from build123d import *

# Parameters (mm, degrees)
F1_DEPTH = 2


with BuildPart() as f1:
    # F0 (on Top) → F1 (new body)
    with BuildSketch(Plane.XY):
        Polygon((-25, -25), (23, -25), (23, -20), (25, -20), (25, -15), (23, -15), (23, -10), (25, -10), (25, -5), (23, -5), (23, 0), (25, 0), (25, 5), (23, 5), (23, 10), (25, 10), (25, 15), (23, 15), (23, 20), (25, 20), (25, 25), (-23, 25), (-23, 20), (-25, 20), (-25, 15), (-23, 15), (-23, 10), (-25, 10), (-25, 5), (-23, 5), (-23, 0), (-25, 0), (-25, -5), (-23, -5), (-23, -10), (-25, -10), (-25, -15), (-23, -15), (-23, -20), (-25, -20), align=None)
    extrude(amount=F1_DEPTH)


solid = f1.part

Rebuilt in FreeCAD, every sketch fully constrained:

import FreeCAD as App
import Part
import Sketcher
Q = App.Units.Quantity

doc = App.newDocument("Part")
params = doc.addObject("Spreadsheet::Sheet", "Params")
for row, (alias, value) in enumerate([
    ("sketch1_width", "48 mm"),
    ("sketch1_width2", "2 mm"),
    ("sketch1_height", "5 mm"),
    ("pad1_length", "2 mm"),
], start=1):
    params.set(f"A{row}", alias)
    params.set(f"B{row}", "=" + value)
    params.setAlias(f"B{row}", alias)

body = doc.addObject("PartDesign::Body", "Body")

sketch1 = body.newObject("Sketcher::SketchObject", "Sketch")
sketch1.AttachmentSupport = (doc.getObject("XY_Plane"), [""])
sketch1.MapMode = "FlatFace"
sketch1.addGeometry([
    Part.LineSegment(App.Vector(-25, -25, 0), App.Vector(23, -25, 0)),
    Part.LineSegment(App.Vector(23, -25, 0), App.Vector(23, -20, 0)),
    Part.LineSegment(App.Vector(23, -20, 0), App.Vector(25, -20, 0)),
    Part.LineSegment(App.Vector(25, -20, 0), App.Vector(25, -15, 0)),
    Part.LineSegment(App.Vector(25, -15, 0), App.Vector(23, -15, 0)),
    Part.LineSegment(App.Vector(23, -15, 0), App.Vector(23, -10, 0)),
    Part.LineSegment(App.Vector(23, -10, 0), App.Vector(25, -10, 0)),
    Part.LineSegment(App.Vector(25, -10, 0), App.Vector(25, -5, 0)),
    Part.LineSegment(App.Vector(25, -5, 0), App.Vector(23, -5, 0)),
    Part.LineSegment(App.Vector(23, -5, 0), App.Vector(23, 0, 0)),
    Part.LineSegment(App.Vector(23, 0, 0), App.Vector(25, 0, 0)),
    Part.LineSegment(App.Vector(25, 0, 0), App.Vector(25, 5, 0)),
    Part.LineSegment(App.Vector(25, 5, 0), App.Vector(23, 5, 0)),
    Part.LineSegment(App.Vector(23, 5, 0), App.Vector(23, 10, 0)),
    Part.LineSegment(App.Vector(23, 10, 0), App.Vector(25, 10, 0)),
    Part.LineSegment(App.Vector(25, 10, 0), App.Vector(25, 15, 0)),
    Part.LineSegment(App.Vector(25, 15, 0), App.Vector(23, 15, 0)),
    Part.LineSegment(App.Vector(23, 15, 0), App.Vector(23, 20, 0)),
    Part.LineSegment(App.Vector(23, 20, 0), App.Vector(25, 20, 0)),
    Part.LineSegment(App.Vector(25, 20, 0), App.Vector(25, 25, 0)),
    Part.LineSegment(App.Vector(25, 25, 0), App.Vector(-23, 25, 0)),
    Part.LineSegment(App.Vector(-23, 25, 0), App.Vector(-23, 20, 0)),
    Part.LineSegment(App.Vector(-23, 20, 0), App.Vector(-25, 20, 0)),
    Part.LineSegment(App.Vector(-25, 20, 0), App.Vector(-25, 15, 0)),
    Part.LineSegment(App.Vector(-25, 15, 0), App.Vector(-23, 15, 0)),
    Part.LineSegment(App.Vector(-23, 15, 0), App.Vector(-23, 10, 0)),
    Part.LineSegment(App.Vector(-23, 10, 0), App.Vector(-25, 10, 0)),
    Part.LineSegment(App.Vector(-25, 10, 0), App.Vector(-25, 5, 0)),
    Part.LineSegment(App.Vector(-25, 5, 0), App.Vector(-23, 5, 0)),
    Part.LineSegment(App.Vector(-23, 5, 0), App.Vector(-23, 0, 0)),
    Part.LineSegment(App.Vector(-23, 0, 0), App.Vector(-25, 0, 0)),
    Part.LineSegment(App.Vector(-25, 0, 0), App.Vector(-25, -5, 0)),
    Part.LineSegment(App.Vector(-25, -5, 0), App.Vector(-23, -5, 0)),
    Part.LineSegment(App.Vector(-23, -5, 0), App.Vector(-23, -10, 0)),
    Part.LineSegment(App.Vector(-23, -10, 0), App.Vector(-25, -10, 0)),
    Part.LineSegment(App.Vector(-25, -10, 0), App.Vector(-25, -15, 0)),
    Part.LineSegment(App.Vector(-25, -15, 0), App.Vector(-23, -15, 0)),
    Part.LineSegment(App.Vector(-23, -15, 0), App.Vector(-23, -20, 0)),
    Part.LineSegment(App.Vector(-23, -20, 0), App.Vector(-25, -20, 0)),
    Part.LineSegment(App.Vector(-25, -20, 0), App.Vector(-25, -25, 0)),
], False)
sketch1.addConstraint([
    Sketcher.Constraint("Coincident", 0, 2, 1, 1),
    Sketcher.Constraint("Coincident", 1, 2, 2, 1),
    Sketcher.Constraint("Coincident", 2, 2, 3, 1),
    Sketcher.Constraint("Coincident", 3, 2, 4, 1),
    Sketcher.Constraint("Coincident", 4, 2, 5, 1),
    Sketcher.Constraint("Coincident", 5, 2, 6, 1),
    Sketcher.Constraint("Coincident", 6, 2, 7, 1),
    Sketcher.Constraint("Coincident", 7, 2, 8, 1),
    Sketcher.Constraint("Coincident", 8, 2, 9, 1),
    Sketcher.Constraint("Coincident", 9, 2, 10, 1),
    Sketcher.Constraint("Coincident", 10, 2, 11, 1),
    Sketcher.Constraint("Coincident", 11, 2, 12, 1),
    Sketcher.Constraint("Coincident", 12, 2, 13, 1),
    Sketcher.Constraint("Coincident", 13, 2, 14, 1),
    Sketcher.Constraint("Coincident", 14, 2, 15, 1),
    Sketcher.Constraint("Coincident", 15, 2, 16, 1),
    Sketcher.Constraint("Coincident", 16, 2, 17, 1),
    Sketcher.Constraint("Coincident", 17, 2, 18, 1),
    Sketcher.Constraint("Coincident", 18, 2, 19, 1),
    Sketcher.Constraint("Coincident", 19, 2, 20, 1),
    Sketcher.Constraint("Coincident", 20, 2, 21, 1),
    Sketcher.Constraint("Coincident", 21, 2, 22, 1),
    Sketcher.Constraint("Coincident", 22, 2, 23, 1),
    Sketcher.Constraint("Coincident", 23, 2, 24, 1),
    Sketcher.Constraint("Coincident", 24, 2, 25, 1),
    Sketcher.Constraint("Coincident", 25, 2, 26, 1),
    Sketcher.Constraint("Coincident", 26, 2, 27, 1),
    Sketcher.Constraint("Coincident", 27, 2, 28, 1),
    Sketcher.Constraint("Coincident", 28, 2, 29, 1),
    Sketcher.Constraint("Coincident", 29, 2, 30, 1),
    Sketcher.Constraint("Coincident", 30, 2, 31, 1),
    Sketcher.Constraint("Coincident", 31, 2, 32, 1),
    Sketcher.Constraint("Coincident", 32, 2, 33, 1),
    Sketcher.Constraint("Coincident", 33, 2, 34, 1),
    Sketcher.Constraint("Coincident", 34, 2, 35, 1),
    Sketcher.Constraint("Coincident", 35, 2, 36, 1),
    Sketcher.Constraint("Coincident", 36, 2, 37, 1),
    Sketcher.Constraint("Coincident", 37, 2, 38, 1),
    Sketcher.Constraint("Coincident", 38, 2, 39, 1),
    Sketcher.Constraint("Coincident", 39, 2, 0, 1),
    Sketcher.Constraint("Horizontal", 0),
    Sketcher.Constraint("Vertical", 1),
    Sketcher.Constraint("Horizontal", 2),
    Sketcher.Constraint("Vertical", 3),
    Sketcher.Constraint("Horizontal", 4),
    Sketcher.Constraint("Vertical", 5),
    Sketcher.Constraint("Horizontal", 6),
    Sketcher.Constraint("Vertical", 7),
    Sketcher.Constraint("Horizontal", 8),
    Sketcher.Constraint("Vertical", 9),
    Sketcher.Constraint("Horizontal", 10),
    Sketcher.Constraint("Vertical", 11),
    Sketcher.Constraint("Horizontal", 12),
    Sketcher.Constraint("Vertical", 13),
    Sketcher.Constraint("Horizontal", 14),
    Sketcher.Constraint("Vertical", 15),
    Sketcher.Constraint("Horizontal", 16),
    Sketcher.Constraint("Vertical", 17),
    Sketcher.Constraint("Horizontal", 18),
    Sketcher.Constraint("Vertical", 19),
    Sketcher.Constraint("Horizontal", 20),
    Sketcher.Constraint("Vertical", 21),
    Sketcher.Constraint("Horizontal", 22),
    Sketcher.Constraint("Vertical", 23),
    Sketcher.Constraint("Horizontal", 24),
    Sketcher.Constraint("Vertical", 25),
    Sketcher.Constraint("Horizontal", 26),
    Sketcher.Constraint("Vertical", 27),
    Sketcher.Constraint("Horizontal", 28),
    Sketcher.Constraint("Vertical", 29),
    Sketcher.Constraint("Horizontal", 30),
    Sketcher.Constraint("Vertical", 31),
    Sketcher.Constraint("Horizontal", 32),
    Sketcher.Constraint("Vertical", 33),
    Sketcher.Constraint("Horizontal", 34),
    Sketcher.Constraint("Vertical", 35),
    Sketcher.Constraint("Horizontal", 36),
    Sketcher.Constraint("Vertical", 37),
    Sketcher.Constraint("Horizontal", 38),
    Sketcher.Constraint("Vertical", 39),
    Sketcher.Constraint("Symmetric", 0, 2, 20, 2, -1, 1),
    Sketcher.Constraint("Symmetric", 2, 2, 22, 2, -1, 1),
    Sketcher.Constraint("Symmetric", 4, 2, 24, 2, -1, 1),
    Sketcher.Constraint("Symmetric", 6, 2, 26, 2, -1, 1),
    Sketcher.Constraint("Symmetric", 8, 2, 28, 2, -1, 1),
    Sketcher.Constraint("Symmetric", 10, 2, 30, 2, -1, 1),
    Sketcher.Constraint("Symmetric", 12, 2, 32, 2, -1, 1),
    Sketcher.Constraint("Symmetric", 14, 2, 34, 2, -1, 1),
    Sketcher.Constraint("Symmetric", 16, 2, 36, 2, -1, 1),
    Sketcher.Constraint("Symmetric", 18, 2, 38, 2, -1, 1),
    Sketcher.Constraint("Symmetric", 17, 2, 21, 2, -2),
    Sketcher.Constraint("Symmetric", 15, 2, 23, 2, -2),
    Sketcher.Constraint("Symmetric", 13, 2, 25, 2, -2),
    Sketcher.Constraint("Symmetric", 11, 2, 27, 2, -2),
    Sketcher.Constraint("PointOnObject", 9, 2, -1),
    Sketcher.Constraint("Vertical", 1, 2, 4, 2),
    Sketcher.Constraint("Vertical", 3, 2, 6, 2),
    Sketcher.Constraint("Vertical", 5, 2, 8, 2),
    Sketcher.Constraint("Vertical", 15, 2, 18, 2),
    Sketcher.Constraint("Equal", 1, 3),
    Sketcher.Constraint("Equal", 3, 5),
    Sketcher.Constraint("Equal", 5, 7),
    Sketcher.Constraint("Equal", 7, 9),
    Sketcher.Constraint("DistanceX", 0, 1, 0, 2, Q("48 mm")),
    Sketcher.Constraint("DistanceX", 2, 1, 2, 2, Q("2 mm")),
    Sketcher.Constraint("DistanceY", 1, 1, 1, 2, Q("5 mm")),
])
sketch1.setExpression("Constraints[103]", "Params.sketch1_width")
sketch1.setExpression("Constraints[104]", "Params.sketch1_width2")
sketch1.setExpression("Constraints[105]", "Params.sketch1_height")
pad1 = body.newObject("PartDesign::Pad", "Pad")
pad1.Profile = sketch1
pad1.setExpression("Length", "Params.pad1_length")

doc.recompute()
